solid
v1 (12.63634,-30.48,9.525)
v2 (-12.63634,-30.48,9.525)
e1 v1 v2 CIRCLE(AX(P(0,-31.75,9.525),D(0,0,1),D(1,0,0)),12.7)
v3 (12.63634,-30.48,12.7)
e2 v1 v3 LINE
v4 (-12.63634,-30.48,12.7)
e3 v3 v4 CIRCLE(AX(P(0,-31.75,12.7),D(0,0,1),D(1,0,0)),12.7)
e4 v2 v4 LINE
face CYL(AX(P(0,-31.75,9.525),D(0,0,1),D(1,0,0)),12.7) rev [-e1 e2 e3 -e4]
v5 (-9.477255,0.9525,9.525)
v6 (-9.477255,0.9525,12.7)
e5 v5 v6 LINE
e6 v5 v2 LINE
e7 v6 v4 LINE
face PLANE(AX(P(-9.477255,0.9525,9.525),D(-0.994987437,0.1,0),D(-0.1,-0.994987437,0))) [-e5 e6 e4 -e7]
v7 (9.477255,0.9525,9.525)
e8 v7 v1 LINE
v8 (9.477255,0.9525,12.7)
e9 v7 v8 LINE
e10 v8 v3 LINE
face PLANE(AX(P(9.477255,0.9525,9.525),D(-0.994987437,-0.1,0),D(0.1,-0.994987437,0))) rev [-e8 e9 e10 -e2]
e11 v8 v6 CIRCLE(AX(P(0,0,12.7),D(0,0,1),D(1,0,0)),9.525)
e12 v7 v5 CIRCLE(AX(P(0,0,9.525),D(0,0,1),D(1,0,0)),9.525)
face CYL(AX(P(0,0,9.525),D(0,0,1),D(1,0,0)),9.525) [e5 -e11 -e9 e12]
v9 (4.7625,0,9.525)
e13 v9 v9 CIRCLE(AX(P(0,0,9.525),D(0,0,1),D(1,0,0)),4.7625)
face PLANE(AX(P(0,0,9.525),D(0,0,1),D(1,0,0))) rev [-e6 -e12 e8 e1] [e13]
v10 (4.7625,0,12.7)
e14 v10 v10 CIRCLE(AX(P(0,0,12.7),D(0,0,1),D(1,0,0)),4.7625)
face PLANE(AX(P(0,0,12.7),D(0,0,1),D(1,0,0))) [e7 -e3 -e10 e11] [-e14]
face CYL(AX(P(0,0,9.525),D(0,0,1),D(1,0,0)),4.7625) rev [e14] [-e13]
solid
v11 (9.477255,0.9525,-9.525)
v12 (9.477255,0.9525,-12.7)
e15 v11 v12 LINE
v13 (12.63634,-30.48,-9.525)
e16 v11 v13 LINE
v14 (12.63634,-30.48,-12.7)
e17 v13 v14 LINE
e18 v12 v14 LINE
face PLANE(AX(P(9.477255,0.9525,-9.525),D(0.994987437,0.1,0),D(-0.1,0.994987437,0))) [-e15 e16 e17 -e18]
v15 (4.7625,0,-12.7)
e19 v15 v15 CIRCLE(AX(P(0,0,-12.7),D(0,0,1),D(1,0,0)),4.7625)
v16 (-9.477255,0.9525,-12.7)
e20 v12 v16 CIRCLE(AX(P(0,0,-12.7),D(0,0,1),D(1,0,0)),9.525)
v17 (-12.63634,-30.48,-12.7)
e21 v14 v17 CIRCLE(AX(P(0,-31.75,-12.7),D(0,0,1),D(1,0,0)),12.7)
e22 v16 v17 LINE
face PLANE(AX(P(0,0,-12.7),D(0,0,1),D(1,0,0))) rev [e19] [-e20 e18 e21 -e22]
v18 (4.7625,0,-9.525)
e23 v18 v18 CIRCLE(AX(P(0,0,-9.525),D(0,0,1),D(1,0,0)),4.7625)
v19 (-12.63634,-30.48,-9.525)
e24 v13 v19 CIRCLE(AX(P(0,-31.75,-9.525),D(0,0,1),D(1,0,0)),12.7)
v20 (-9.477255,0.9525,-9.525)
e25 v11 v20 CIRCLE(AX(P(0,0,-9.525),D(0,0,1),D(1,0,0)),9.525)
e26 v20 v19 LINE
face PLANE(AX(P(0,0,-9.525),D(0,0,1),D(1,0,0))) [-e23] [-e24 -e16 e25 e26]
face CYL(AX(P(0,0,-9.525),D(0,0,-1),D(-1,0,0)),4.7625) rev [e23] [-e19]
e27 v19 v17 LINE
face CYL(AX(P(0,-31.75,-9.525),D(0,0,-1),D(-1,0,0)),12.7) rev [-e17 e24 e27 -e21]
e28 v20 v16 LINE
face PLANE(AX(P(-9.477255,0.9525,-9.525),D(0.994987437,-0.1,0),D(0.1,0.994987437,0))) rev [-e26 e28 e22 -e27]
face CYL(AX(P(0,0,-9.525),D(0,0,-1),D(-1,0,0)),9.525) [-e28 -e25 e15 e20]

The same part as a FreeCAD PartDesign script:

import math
import FreeCAD as App
import Part
import Sketcher
from FreeCAD import Vector
Q = App.Units.Quantity

doc = App.newDocument("Part")
body = doc.addObject("PartDesign::Body", "Body")

sketch1 = body.newObject("Sketcher::SketchObject", "Sketch")
sketch1.AttachmentSupport = (doc.getObject("XY_Plane"), [""])
sketch1.MapMode = "FlatFace"
sketch1.AttachmentOffset = App.Placement(Vector(0, 0, 0.5 * 25.4), App.Rotation())
sketch1.addGeometry([
    Part.ArcOfCircle(Part.Circle(Vector(0, 0, 0), Vector(0, 0, 1), 9.5), math.radians(6), math.radians(174)),
    Part.LineSegment(Vector(-9.5, 1, 0), Vector(-12.6, -30.5, 0)),
    Part.ArcOfCircle(Part.Circle(Vector(0, -31.8, 0), Vector(0, 0, 1), 12.7), math.radians(6), math.radians(174)),
    Part.LineSegment(Vector(12.6, -30.5, 0), Vector(9.5, 1, 0)),
    Part.Circle(Vector(0, 0, 0), Vector(0, 0, 1), 4.8),
], False)
sketch1.addConstraint([
    Sketcher.Constraint("Tangent", 0, 2, 1, 1),
    Sketcher.Constraint("Tangent", 1, 2, 2, 2),
    Sketcher.Constraint("Tangent", 2, 1, 3, 1),
    Sketcher.Constraint("Tangent", 3, 2, 0, 1),
    Sketcher.Constraint("Coincident", 0, 3, -1, 1),
    Sketcher.Constraint("Coincident", 4, 3, -1, 1),
    Sketcher.Constraint("PointOnObject", 2, 3, -2),
    Sketcher.Constraint("Radius", 2, Q("0.5 in")),
    Sketcher.Constraint("Diameter", 4, Q("0.375 in")),
    Sketcher.Constraint("Radius", 0, Q("0.375 in")),
    Sketcher.Constraint("DistanceY", 1, 2, -1, 1, Q("1.2 in")),
])
pad1 = body.newObject("PartDesign::Pad", "Pad")
pad1.Profile = sketch1
pad1.Length = Q("0.125 in")
pad1.Reversed = True
body2 = doc.addObject("PartDesign::Body", "Body001")

sketch2 = body2.newObject("Sketcher::SketchObject", "Sketch001")
sketch2.AttachmentSupport = (doc.getObject("XY_Plane001"), [""])
sketch2.MapMode = "FlatFace"
sketch2.AttachmentOffset = App.Placement(Vector(0, 0, -0.5 * 25.4), App.Rotation())
sketch2.addGeometry([
    Part.ArcOfCircle(Part.Circle(Vector(0, 0, 0), Vector(0, 0, 1), 9.5), math.radians(6), math.radians(174)),
    Part.LineSegment(Vector(-9.5, 1, 0), Vector(-12.6, -30.5, 0)),
    Part.ArcOfCircle(Part.Circle(Vector(0, -31.8, 0), Vector(0, 0, 1), 12.7), math.radians(6), math.radians(174)),
    Part.LineSegment(Vector(12.6, -30.5, 0), Vector(9.5, 1, 0)),
    Part.Circle(Vector(0, 0, 0), Vector(0, 0, 1), 4.8),
], False)
sketch2.addConstraint([
    Sketcher.Constraint("Tangent", 0, 2, 1, 1),
    Sketcher.Constraint("Tangent", 1, 2, 2, 2),
    Sketcher.Constraint("Tangent", 2, 1, 3, 1),
    Sketcher.Constraint("Tangent", 3, 2, 0, 1),
    Sketcher.Constraint("Coincident", 0, 3, -1, 1),
    Sketcher.Constraint("Coincident", 4, 3, -1, 1),
    Sketcher.Constraint("PointOnObject", 2, 3, -2),
    Sketcher.Constraint("Radius", 2, Q("0.5 in")),
    Sketcher.Constraint("Diameter", 4, Q("0.375 in")),
    Sketcher.Constraint("Radius", 0, Q("0.375 in")),
    Sketcher.Constraint("DistanceY", 1, 2, -1, 1, Q("1.2 in")),
])
pad2 = body2.newObject("PartDesign::Pad", "Pad001")
pad2.Profile = sketch2
pad2.Length = Q("0.125 in")

doc.recompute()
